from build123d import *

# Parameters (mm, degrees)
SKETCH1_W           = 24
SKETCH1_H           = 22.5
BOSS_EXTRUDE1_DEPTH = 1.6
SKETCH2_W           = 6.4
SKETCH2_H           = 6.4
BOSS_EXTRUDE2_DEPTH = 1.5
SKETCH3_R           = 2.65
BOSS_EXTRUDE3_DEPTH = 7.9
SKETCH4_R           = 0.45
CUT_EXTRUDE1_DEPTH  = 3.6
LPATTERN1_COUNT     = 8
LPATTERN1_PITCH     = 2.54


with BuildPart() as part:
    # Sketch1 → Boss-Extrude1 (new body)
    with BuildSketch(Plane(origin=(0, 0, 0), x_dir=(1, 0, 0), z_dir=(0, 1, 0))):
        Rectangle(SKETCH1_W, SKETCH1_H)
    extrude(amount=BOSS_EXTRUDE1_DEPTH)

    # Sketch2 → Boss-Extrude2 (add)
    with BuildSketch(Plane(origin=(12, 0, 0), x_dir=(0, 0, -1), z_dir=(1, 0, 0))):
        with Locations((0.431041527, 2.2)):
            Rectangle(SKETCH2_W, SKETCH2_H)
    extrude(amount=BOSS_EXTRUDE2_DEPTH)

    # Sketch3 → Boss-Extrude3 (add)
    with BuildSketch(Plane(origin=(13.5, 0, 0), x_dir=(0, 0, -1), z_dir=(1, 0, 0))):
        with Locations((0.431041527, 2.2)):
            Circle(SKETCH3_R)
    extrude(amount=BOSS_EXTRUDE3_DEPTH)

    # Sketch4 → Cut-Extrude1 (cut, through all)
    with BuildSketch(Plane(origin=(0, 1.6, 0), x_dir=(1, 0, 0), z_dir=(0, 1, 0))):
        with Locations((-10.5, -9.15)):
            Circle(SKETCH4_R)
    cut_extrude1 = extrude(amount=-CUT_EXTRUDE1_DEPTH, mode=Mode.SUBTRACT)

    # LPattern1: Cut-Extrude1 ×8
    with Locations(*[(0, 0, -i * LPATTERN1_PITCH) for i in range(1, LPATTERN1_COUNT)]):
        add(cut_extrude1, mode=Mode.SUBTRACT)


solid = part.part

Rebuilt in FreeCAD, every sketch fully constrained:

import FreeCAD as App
import Part
import Sketcher

doc = App.newDocument("Part")
params = doc.addObject("Spreadsheet::Sheet", "Params")
for row, (alias, value) in enumerate([
    ("sketch1_width", "24 mm"),
    ("sketch1_height", "22.5 mm"),
    ("pad1_length", "1.6 mm"),
    ("sketch2_width", "6.4 mm"),
    ("pad2_length", "1.5 mm"),
    ("sketch3_diameter", "5.3 mm"),
    ("pad3_length", "7.9 mm"),
    ("sketch4_diameter", "0.9 mm"),
    ("linearpattern_pitch", "2.54 mm"),
], start=1):
    params.set(f"A{row}", alias)
    params.set(f"B{row}", "=" + value)
    params.setAlias(f"B{row}", alias)

body = doc.addObject("PartDesign::Body", "Body")

# Sketch on XZ plane
sketch1 = body.newObject("Sketcher::SketchObject", "Sketch")
sketch1.AttachmentSupport = (doc.getObject("XZ_Plane"), [""])
sketch1.MapMode = "FlatFace"
sketch1.addGeometry([
    Part.LineSegment(App.Vector(-12, -11.25, 0), App.Vector(-12, 11.25, 0)),
    Part.LineSegment(App.Vector(-12, 11.25, 0), App.Vector(12, 11.25, 0)),
    Part.LineSegment(App.Vector(12, 11.25, 0), App.Vector(12, -11.25, 0)),
    Part.LineSegment(App.Vector(12, -11.25, 0), App.Vector(-12, -11.25, 0)),
], False)
sketch1.addConstraint([
    Sketcher.Constraint("Coincident", 0, 2, 1, 1),
    Sketcher.Constraint("Coincident", 1, 2, 2, 1),
    Sketcher.Constraint("Coincident", 2, 2, 3, 1),
    Sketcher.Constraint("Coincident", 3, 2, 0, 1),
    Sketcher.Constraint("Vertical", 0),
    Sketcher.Constraint("Horizontal", 1),
    Sketcher.Constraint("Vertical", 2),
    Sketcher.Constraint("Horizontal", 3),
    Sketcher.Constraint("Symmetric", 0, 2, 2, 2, -1, 1),
    Sketcher.Constraint("DistanceX", 1, 1, 1, 2, 24.0),
    Sketcher.Constraint("DistanceY", 0, 1, 0, 2, 22.5),
])
sketch1.setExpression("Constraints[9]", "Params.sketch1_width")
sketch1.setExpression("Constraints[10]", "Params.sketch1_height")
pad1 = body.newObject("PartDesign::Pad", "Pad")
pad1.Profile = sketch1
pad1.setExpression("Length", "Params.pad1_length")
pad1.Reversed = True

# Sketch on YZ plane
sketch2 = body.newObject("Sketcher::SketchObject", "Sketch001")
sketch2.AttachmentSupport = (doc.getObject("YZ_Plane"), [""])
sketch2.MapMode = "FlatFace"
sketch2.AttachmentOffset = App.Placement(App.Vector(0, 0, 12), App.Rotation())
sketch2.addGeometry([
    Part.LineSegment(App.Vector(5.4, 2.768958, 0), App.Vector(-1, 2.768958, 0)),
    Part.LineSegment(App.Vector(-1, 2.768958, 0), App.Vector(-1, -3.631042, 0)),
    Part.LineSegment(App.Vector(-1, -3.631042, 0), App.Vector(5.4, -3.631042, 0)),
    Part.LineSegment(App.Vector(5.4, -3.631042, 0), App.Vector(5.4, 2.768958, 0)),
], False)
sketch2.addConstraint([
    Sketcher.Constraint("Coincident", 0, 2, 1, 1),
    Sketcher.Constraint("Coincident", 1, 2, 2, 1),
    Sketcher.Constraint("Coincident", 2, 2, 3, 1),
    Sketcher.Constraint("Coincident", 3, 2, 0, 1),
    Sketcher.Constraint("Horizontal", 0),
    Sketcher.Constraint("Vertical", 1),
    Sketcher.Constraint("Horizontal", 2),
    Sketcher.Constraint("Vertical", 3),
    Sketcher.Constraint("Equal", 2, 1),
    Sketcher.Constraint("DistanceX", 0, 2, 0, 1, 6.4),
    Sketcher.Constraint("DistanceX", 0, 2, -1, 1, 1.0),
    Sketcher.Constraint("DistanceY", -1, 1, 0, 2, 2.768958),
])
sketch2.setExpression("Constraints[9]", "Params.sketch2_width")
pad2 = body.newObject("PartDesign::Pad", "Pad001")
pad2.Profile = sketch2
pad2.setExpression("Length", "Params.pad2_length")

# Sketch on YZ plane
sketch3 = body.newObject("Sketcher::SketchObject", "Sketch002")
sketch3.AttachmentSupport = (doc.getObject("YZ_Plane"), [""])
sketch3.MapMode = "FlatFace"
sketch3.AttachmentOffset = App.Placement(App.Vector(0, 0, 13.5), App.Rotation())
sketch3.addGeometry(Part.Circle(App.Vector(2.2, -0.431042, 0), App.Vector(0, 0, 1), 2.65), False)
sketch3.addConstraint([
    Sketcher.Constraint("Diameter", 0, 5.3),
    Sketcher.Constraint("DistanceX", -1, 1, 0, 3, 2.2),
    Sketcher.Constraint("DistanceY", 0, 3, -1, 1, 0.431042),
])
sketch3.setExpression("Constraints[0]", "Params.sketch3_diameter")
pad3 = body.newObject("PartDesign::Pad", "Pad002")
pad3.Profile = sketch3
pad3.setExpression("Length", "Params.pad3_length")

# Sketch on XZ plane
sketch4 = body.newObject("Sketcher::SketchObject", "Sketch003")
sketch4.AttachmentSupport = (doc.getObject("XZ_Plane"), [""])
sketch4.MapMode = "FlatFace"
sketch4.AttachmentOffset = App.Placement(App.Vector(0, 0, -1.6), App.Rotation())
sketch4.addGeometry(Part.Circle(App.Vector(-10.5, 9.15, 0), App.Vector(0, 0, 1), 0.45), False)
sketch4.addConstraint([
    Sketcher.Constraint("Diameter", 0, 0.9),
    Sketcher.Constraint("DistanceX", 0, 3, -1, 1, 10.5),
    Sketcher.Constraint("DistanceY", -1, 1, 0, 3, 9.15),
])
sketch4.setExpression("Constraints[0]", "Params.sketch4_diameter")
pocket1 = body.newObject("PartDesign::Pocket", "Pocket")
pocket1.Profile = sketch4
pocket1.Type = "ThroughAll"
pocket1.Reversed = True
doc.recompute()

linearpattern = body.newObject("PartDesign::LinearPattern", "LinearPattern")
linearpattern.Originals = [pocket1]
linearpattern.Direction = (doc.getObject("Z_Axis"), [""])
linearpattern.Mode = "offset"
linearpattern.setExpression("Offset", "Params.linearpattern_pitch")
linearpattern.Occurrences = 8
linearpattern.Reversed = True
body.Tip = linearpattern

doc.recompute()
